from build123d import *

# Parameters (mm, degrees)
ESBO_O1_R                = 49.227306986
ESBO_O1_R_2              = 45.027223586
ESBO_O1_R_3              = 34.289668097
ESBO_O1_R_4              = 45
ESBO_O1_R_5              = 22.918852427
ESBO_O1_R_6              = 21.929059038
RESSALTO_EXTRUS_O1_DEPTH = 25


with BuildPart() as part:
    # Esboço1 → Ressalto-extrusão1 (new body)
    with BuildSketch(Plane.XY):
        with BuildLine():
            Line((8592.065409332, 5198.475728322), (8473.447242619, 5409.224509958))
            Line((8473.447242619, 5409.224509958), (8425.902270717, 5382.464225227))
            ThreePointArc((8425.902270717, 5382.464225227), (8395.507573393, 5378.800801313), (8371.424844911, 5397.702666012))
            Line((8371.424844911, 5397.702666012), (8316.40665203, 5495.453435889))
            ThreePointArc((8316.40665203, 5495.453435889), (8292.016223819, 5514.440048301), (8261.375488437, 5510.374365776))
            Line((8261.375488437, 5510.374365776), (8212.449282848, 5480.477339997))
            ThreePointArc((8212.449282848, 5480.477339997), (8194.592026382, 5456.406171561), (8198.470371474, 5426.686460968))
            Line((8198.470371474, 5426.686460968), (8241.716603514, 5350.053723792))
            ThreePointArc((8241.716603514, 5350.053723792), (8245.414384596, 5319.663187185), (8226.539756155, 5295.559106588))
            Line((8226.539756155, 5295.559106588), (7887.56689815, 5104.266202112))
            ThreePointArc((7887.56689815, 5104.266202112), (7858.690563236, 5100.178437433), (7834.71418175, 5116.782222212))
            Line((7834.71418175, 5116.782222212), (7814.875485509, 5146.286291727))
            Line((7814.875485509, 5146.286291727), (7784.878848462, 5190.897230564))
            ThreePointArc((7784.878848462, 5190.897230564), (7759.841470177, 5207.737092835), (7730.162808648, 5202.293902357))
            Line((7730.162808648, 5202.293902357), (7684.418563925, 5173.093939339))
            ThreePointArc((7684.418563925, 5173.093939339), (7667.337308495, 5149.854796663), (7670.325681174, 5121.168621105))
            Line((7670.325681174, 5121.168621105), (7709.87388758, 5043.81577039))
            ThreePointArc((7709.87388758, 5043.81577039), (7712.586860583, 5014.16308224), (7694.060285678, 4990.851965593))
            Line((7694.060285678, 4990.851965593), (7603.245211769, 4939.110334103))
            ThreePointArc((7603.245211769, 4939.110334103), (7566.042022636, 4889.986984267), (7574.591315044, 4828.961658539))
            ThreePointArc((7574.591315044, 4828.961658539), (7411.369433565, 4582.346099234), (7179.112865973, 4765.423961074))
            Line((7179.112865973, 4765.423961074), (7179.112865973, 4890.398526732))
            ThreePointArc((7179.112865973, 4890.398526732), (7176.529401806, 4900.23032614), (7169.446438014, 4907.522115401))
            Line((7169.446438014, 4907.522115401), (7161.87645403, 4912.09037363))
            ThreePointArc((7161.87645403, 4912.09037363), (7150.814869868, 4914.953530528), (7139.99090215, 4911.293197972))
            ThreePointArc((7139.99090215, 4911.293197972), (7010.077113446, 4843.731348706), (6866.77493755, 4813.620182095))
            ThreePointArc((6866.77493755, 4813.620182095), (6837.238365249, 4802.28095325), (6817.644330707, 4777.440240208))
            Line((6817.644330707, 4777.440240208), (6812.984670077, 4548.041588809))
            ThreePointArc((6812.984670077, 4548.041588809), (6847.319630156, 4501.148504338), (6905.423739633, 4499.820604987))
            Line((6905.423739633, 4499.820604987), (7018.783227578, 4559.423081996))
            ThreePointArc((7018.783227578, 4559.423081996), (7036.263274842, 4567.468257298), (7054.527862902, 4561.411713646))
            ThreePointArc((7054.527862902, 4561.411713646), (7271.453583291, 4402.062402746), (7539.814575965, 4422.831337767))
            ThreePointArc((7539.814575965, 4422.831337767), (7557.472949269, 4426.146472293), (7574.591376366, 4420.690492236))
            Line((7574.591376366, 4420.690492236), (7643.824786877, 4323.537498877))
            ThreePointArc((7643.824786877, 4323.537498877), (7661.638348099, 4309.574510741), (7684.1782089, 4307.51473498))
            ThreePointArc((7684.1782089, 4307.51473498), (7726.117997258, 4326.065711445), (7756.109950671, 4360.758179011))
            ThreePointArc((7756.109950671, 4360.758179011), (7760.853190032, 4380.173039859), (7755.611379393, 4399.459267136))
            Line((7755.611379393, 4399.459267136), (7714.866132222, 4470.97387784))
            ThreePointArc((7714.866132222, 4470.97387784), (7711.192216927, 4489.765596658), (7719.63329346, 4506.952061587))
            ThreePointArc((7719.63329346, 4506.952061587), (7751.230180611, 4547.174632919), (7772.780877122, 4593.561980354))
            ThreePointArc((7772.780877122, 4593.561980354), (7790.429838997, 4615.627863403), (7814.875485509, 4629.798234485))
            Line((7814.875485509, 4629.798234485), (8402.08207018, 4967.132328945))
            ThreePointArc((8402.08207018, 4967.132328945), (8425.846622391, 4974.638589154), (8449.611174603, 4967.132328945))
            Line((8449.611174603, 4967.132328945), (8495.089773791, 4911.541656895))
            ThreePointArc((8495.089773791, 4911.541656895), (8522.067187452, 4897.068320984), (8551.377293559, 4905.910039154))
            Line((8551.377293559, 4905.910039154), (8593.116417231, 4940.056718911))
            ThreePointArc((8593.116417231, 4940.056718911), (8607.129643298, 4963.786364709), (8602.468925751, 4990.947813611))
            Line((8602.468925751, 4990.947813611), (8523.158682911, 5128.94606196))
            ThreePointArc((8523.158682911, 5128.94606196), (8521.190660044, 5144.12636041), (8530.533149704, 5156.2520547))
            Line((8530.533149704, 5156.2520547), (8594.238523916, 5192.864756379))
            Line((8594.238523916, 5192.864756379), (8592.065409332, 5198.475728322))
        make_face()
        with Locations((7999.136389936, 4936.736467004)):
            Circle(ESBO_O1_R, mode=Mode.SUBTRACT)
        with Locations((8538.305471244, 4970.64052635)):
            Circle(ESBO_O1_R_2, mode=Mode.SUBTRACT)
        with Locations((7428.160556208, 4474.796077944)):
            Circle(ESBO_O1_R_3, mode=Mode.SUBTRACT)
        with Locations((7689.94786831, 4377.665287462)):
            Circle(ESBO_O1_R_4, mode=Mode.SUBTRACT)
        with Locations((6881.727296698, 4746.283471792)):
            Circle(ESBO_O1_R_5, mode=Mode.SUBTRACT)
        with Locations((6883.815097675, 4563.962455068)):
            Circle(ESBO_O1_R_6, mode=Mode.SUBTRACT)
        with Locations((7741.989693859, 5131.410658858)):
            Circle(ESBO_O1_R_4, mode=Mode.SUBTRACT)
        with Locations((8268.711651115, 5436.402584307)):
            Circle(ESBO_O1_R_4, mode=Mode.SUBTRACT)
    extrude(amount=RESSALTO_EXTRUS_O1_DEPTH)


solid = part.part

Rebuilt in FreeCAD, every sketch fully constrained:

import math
import FreeCAD as App
import Part
import Sketcher
from FreeCAD import Vector

doc = App.newDocument("Part")
body = doc.addObject("PartDesign::Body", "Body")

sketch1 = doc.addObject("Sketcher::SketchObject", "Sketch")
body.addObject(sketch1)
sketch1.AttachmentSupport = (doc.XY_Plane, [""])
sketch1.MapMode = "FlatFace"
sketch1.addGeometry([
    Part.LineSegment(Vector(8592.065409, 5198.475728, 0), Vector(8473.447243, 5409.22451, 0)),
    Part.LineSegment(Vector(8473.447243, 5409.22451, 0), Vector(8425.902271, 5382.464225, 0)),
    Part.ArcOfCircle(Part.Circle(Vector(8406.282778, 5417.322159, 0), Vector(0, 0, 1), 40), math.radians(-150.627384), math.radians(-60.627384)),
    Part.LineSegment(Vector(8371.424845, 5397.702666, 0), Vector(8316.406652, 5495.453436, 0)),
    Part.ArcOfCircle(Part.Circle(Vector(8281.548719, 5475.833943, 0), Vector(0, 0, 1), 40), math.radians(29.372616), math.radians(120.286937)),
    Part.LineSegment(Vector(8261.375488, 5510.374366, 0), Vector(8212.449283, 5480.47734, 0)),
    Part.ArcOfCircle(Part.Circle(Vector(8233.306104, 5446.345346, 0), Vector(0, 0, 1), 40), math.radians(121.427586), math.radians(209.437386)),
    Part.LineSegment(Vector(8198.470371, 5426.686461, 0), Vector(8241.716604, 5350.053724, 0)),
    Part.ArcOfCircle(Part.Circle(Vector(8206.880871, 5330.394839, 0), Vector(0, 0, 1), 40), math.radians(-60.562614), math.radians(29.437386)),
    Part.LineSegment(Vector(8226.539756, 5295.559107, 0), Vector(7887.566898, 5104.266202, 0)),
    Part.ArcOfCircle(Part.Circle(Vector(7867.908013, 5139.101934, 0), Vector(0, 0, 1), 40), math.radians(-146.0829), math.radians(-60.562614)),
    Part.LineSegment(Vector(7834.714182, 5116.782222, 0), Vector(7814.875486, 5146.286292, 0)),
    Part.LineSegment(Vector(7814.875486, 5146.286292, 0), Vector(7784.878848, 5190.897231, 0)),
    Part.ArcOfCircle(Part.Circle(Vector(7751.685017, 5168.577518, 0), Vector(0, 0, 1), 40), math.radians(33.9171), math.radians(122.551346)),
    Part.LineSegment(Vector(7730.162809, 5202.293902, 0), Vector(7684.418564, 5173.093939, 0)),
    Part.ArcOfCircle(Part.Circle(Vector(7705.940772, 5139.377555, 0), Vector(0, 0, 1), 40), math.radians(122.551346), math.radians(207.079306)),
    Part.LineSegment(Vector(7670.325681, 5121.168621, 0), Vector(7709.873888, 5043.81577, 0)),
    Part.ArcOfCircle(Part.Circle(Vector(7674.258796, 5025.606836, 0), Vector(0, 0, 1), 40), math.radians(-60.327795), math.radians(27.079306)),
    Part.LineSegment(Vector(7694.060286, 4990.851966, 0), Vector(7603.245212, 4939.110334, 0)),
    Part.ArcOfCircle(Part.Circle(Vector(7643.775622, 4869.765493, 0), Vector(0, 0, 1), 80.32074), math.radians(120.30527), math.radians(210.531446)),
    Part.ArcOfCircle(Part.Circle(Vector(7379.491158, 4780.766428, 0), Vector(0, 0, 1), 200.964801), math.radians(-175.621548), math.radians(13.875873)),
    Part.LineSegment(Vector(7179.112866, 4765.423961, 0), Vector(7179.112866, 4890.398527, 0)),
    Part.ArcOfCircle(Part.Circle(Vector(7159.112866, 4890.398527, 0), Vector(0, 0, 1), 20), math.radians(0), math.radians(58.890279)),
    Part.LineSegment(Vector(7169.446438, 4907.522115, 0), Vector(7161.876454, 4912.090374, 0)),
    Part.ArcOfCircle(Part.Circle(Vector(7151.542882, 4894.966785, 0), Vector(0, 0, 1), 20), math.radians(58.890279), math.radians(125.281845)),
    Part.ArcOfCircle(Part.Circle(Vector(6828.590225, 5351.395773, 0), Vector(0, 0, 1), 539.129537), math.radians(-85.938534), math.radians(-54.718155)),
    Part.ArcOfCircle(Part.Circle(Vector(6872.637835, 4754.21019, 0), Vector(0, 0, 1), 59.698582), math.radians(95.636007), math.radians(157.100102)),
    Part.LineSegment(Vector(6817.644331, 4777.44024, 0), Vector(6812.98467, 4548.041589, 0)),
    Part.ArcOfCircle(Part.Circle(Vector(6877.718654, 4559.423082, 0), Vector(0, 0, 1), 65.726913), math.radians(-170.028205), math.radians(-65.069529)),
    Part.LineSegment(Vector(6905.42374, 4499.820605, 0), Vector(7018.783228, 4559.423082, 0)),
    Part.ArcOfCircle(Part.Circle(Vector(7037.719592, 4541.291707, 0), Vector(0, 0, 1), 26.21703), math.radians(50.124589), math.radians(136.24408)),
    Part.ArcOfCircle(Part.Circle(Vector(7377.655548, 4773.965003, 0), Vector(0, 0, 1), 386.769184), math.radians(-146.663094), math.radians(-65.211767)),
    Part.ArcOfCircle(Part.Circle(Vector(7555.21589, 4389.481853, 0), Vector(0, 0, 1), 36.734025), math.radians(58.166449), math.radians(114.788233)),
    Part.LineSegment(Vector(7574.591376, 4420.690492, 0), Vector(7643.824787, 4323.537499, 0)),
    Part.ArcOfCircle(Part.Circle(Vector(7676.399731, 4346.751137, 0), Vector(0, 0, 1), 40), math.radians(-144.525472), math.radians(-78.786706)),
    Part.ArcOfCircle(Part.Circle(Vector(7663.813506, 4410.238902, 0), Vector(0, 0, 1), 104.723329), math.radians(-78.786706), math.radians(-28.196048)),
    Part.ArcOfCircle(Part.Circle(Vector(7720.856509, 4379.657778, 0), Vector(0, 0, 1), 40), math.radians(-28.196048), math.radians(29.672205)),
    Part.LineSegment(Vector(7755.611379, 4399.459267, 0), Vector(7714.866132, 4470.973878, 0)),
    Part.ArcOfCircle(Part.Circle(Vector(7740.932285, 4485.824995, 0), Vector(0, 0, 1), 30), math.radians(135.232181), math.radians(209.672205)),
    Part.ArcOfCircle(Part.Circle(Vector(7562.048922, 4663.264417, 0), Vector(0, 0, 1), 221.960327), math.radians(-44.767819), math.radians(-18.30233)),
    Part.ArcOfCircle(Part.Circle(Vector(7840.427047, 4557.547552, 0), Vector(0, 0, 1), 76.635784), math.radians(109.476217), math.radians(151.969422)),
    Part.LineSegment(Vector(7814.875486, 4629.798234, 0), Vector(8402.08207, 4967.132329, 0)),
    Part.ArcOfCircle(Part.Circle(Vector(8425.846622, 4933.266597, 0), Vector(0, 0, 1), 41.371993), math.radians(54.941564), math.radians(125.058436)),
    Part.LineSegment(Vector(8449.611175, 4967.132329, 0), Vector(8495.089774, 4911.541657, 0)),
    Part.ArcOfCircle(Part.Circle(Vector(8526.049343, 4936.869608, 0), Vector(0, 0, 1), 40), math.radians(-140.713481), math.radians(-50.713481)),
    Part.LineSegment(Vector(8551.377294, 4905.910039, 0), Vector(8593.116417, 4940.056719, 0)),
    Part.ArcOfCircle(Part.Circle(Vector(8567.788466, 4971.016288, 0), Vector(0, 0, 1), 40), math.radians(-50.713481), math.radians(29.886809)),
    Part.LineSegment(Vector(8602.468926, 4990.947814, 0), Vector(8523.158683, 5128.946062, 0)),
    Part.ArcOfCircle(Part.Circle(Vector(8540.498913, 5138.911825, 0), Vector(0, 0, 1), 20), math.radians(119.886809), math.radians(209.886809)),
    Part.LineSegment(Vector(8530.53315, 5156.252055, 0), Vector(8594.238524, 5192.864756, 0)),
    Part.LineSegment(Vector(8594.238524, 5192.864756, 0), Vector(8592.065409, 5198.475728, 0)),
    Part.Circle(Vector(6883.815098, 4563.962455, 0), Vector(0, 0, 1), 21.929059),
    Part.Circle(Vector(7428.160556, 4474.796078, 0), Vector(0, 0, 1), 34.289668),
    Part.Circle(Vector(7689.947868, 4377.665287, 0), Vector(0, 0, 1), 45),
    Part.Circle(Vector(6881.727297, 4746.283472, 0), Vector(0, 0, 1), 22.918852),
    Part.Circle(Vector(7999.13639, 4936.736467, 0), Vector(0, 0, 1), 49.227307),
    Part.Circle(Vector(7741.989694, 5131.410659, 0), Vector(0, 0, 1), 45),
    Part.Circle(Vector(8538.305471, 4970.640526, 0), Vector(0, 0, 1), 45.027224),
    Part.Circle(Vector(8268.711651, 5436.402584, 0), Vector(0, 0, 1), 45),
], False)
sketch1.addConstraint([
    Sketcher.Constraint("Coincident", 0, 2, 1, 1),
    Sketcher.Constraint("Coincident", 1, 2, 2, 2),
    Sketcher.Constraint("Coincident", 2, 1, 3, 1),
    Sketcher.Constraint("Coincident", 3, 2, 4, 1),
    Sketcher.Constraint("Coincident", 4, 2, 5, 1),
    Sketcher.Constraint("Coincident", 5, 2, 6, 1),
    Sketcher.Constraint("Coincident", 6, 2, 7, 1),
    Sketcher.Constraint("Coincident", 7, 2, 8, 2),
    Sketcher.Constraint("Coincident", 8, 1, 9, 1),
    Sketcher.Constraint("Coincident", 9, 2, 10, 2),
    Sketcher.Constraint("Coincident", 10, 1, 11, 1),
    Sketcher.Constraint("Coincident", 11, 2, 12, 1),
    Sketcher.Constraint("Coincident", 12, 2, 13, 1),
    Sketcher.Constraint("Coincident", 13, 2, 14, 1),
    Sketcher.Constraint("Coincident", 14, 2, 15, 1),
    Sketcher.Constraint("Coincident", 15, 2, 16, 1),
    Sketcher.Constraint("Coincident", 16, 2, 17, 2),
    Sketcher.Constraint("Coincident", 17, 1, 18, 1),
    Sketcher.Constraint("Coincident", 18, 2, 19, 1),
    Sketcher.Constraint("Coincident", 19, 2, 20, 2),
    Sketcher.Constraint("Coincident", 20, 1, 21, 1),
    Sketcher.Constraint("Coincident", 21, 2, 22, 1),
    Sketcher.Constraint("Coincident", 22, 2, 23, 1),
    Sketcher.Constraint("Coincident", 23, 2, 24, 1),
    Sketcher.Constraint("Coincident", 24, 2, 25, 2),
    Sketcher.Constraint("Coincident", 25, 1, 26, 1),
    Sketcher.Constraint("Coincident", 26, 2, 27, 1),
    Sketcher.Constraint("Coincident", 27, 2, 28, 1),
    Sketcher.Constraint("Coincident", 28, 2, 29, 1),
    Sketcher.Constraint("Coincident", 29, 2, 30, 2),
    Sketcher.Constraint("Coincident", 30, 1, 31, 1),
    Sketcher.Constraint("Coincident", 31, 2, 32, 2),
    Sketcher.Constraint("Coincident", 32, 1, 33, 1),
    Sketcher.Constraint("Coincident", 33, 2, 34, 1),
    Sketcher.Constraint("Coincident", 34, 2, 35, 1),
    Sketcher.Constraint("Coincident", 35, 2, 36, 1),
    Sketcher.Constraint("Coincident", 36, 2, 37, 1),
    Sketcher.Constraint("Coincident", 37, 2, 38, 2),
    Sketcher.Constraint("Coincident", 38, 1, 39, 1),
    Sketcher.Constraint("Coincident", 39, 2, 40, 2),
    Sketcher.Constraint("Coincident", 40, 1, 41, 1),
    Sketcher.Constraint("Coincident", 41, 2, 42, 2),
    Sketcher.Constraint("Coincident", 42, 1, 43, 1),
    Sketcher.Constraint("Coincident", 43, 2, 44, 1),
    Sketcher.Constraint("Coincident", 44, 2, 45, 1),
    Sketcher.Constraint("Coincident", 45, 2, 46, 1),
    Sketcher.Constraint("Coincident", 46, 2, 47, 1),
    Sketcher.Constraint("Coincident", 47, 2, 48, 2),
    Sketcher.Constraint("Coincident", 48, 1, 49, 1),
    Sketcher.Constraint("Coincident", 49, 2, 50, 1),
    Sketcher.Constraint("Coincident", 50, 2, 0, 1),
    Sketcher.Constraint("Vertical", 21),
    Sketcher.Constraint("Diameter", 53, 90.0),
    Sketcher.Constraint("Diameter", 56, 90.0),
    Sketcher.Constraint("Diameter", 58, 90.0),
    Sketcher.Constraint("Radius", 2, 40.0),
    Sketcher.Constraint("Radius", 4, 40.0),
    Sketcher.Constraint("Radius", 6, 40.0),
    Sketcher.Constraint("Radius", 8, 40.0),
    Sketcher.Constraint("Radius", 10, 40.0),
    Sketcher.Constraint("Radius", 13, 40.0),
    Sketcher.Constraint("Radius", 15, 40.0),
    Sketcher.Constraint("Radius", 17, 40.0),
    Sketcher.Constraint("Radius", 22, 20.0),
    Sketcher.Constraint("Radius", 24, 20.0),
    Sketcher.Constraint("Radius", 34, 40.0),
    Sketcher.Constraint("Radius", 36, 40.0),
    Sketcher.Constraint("Radius", 38, 30.0),
    Sketcher.Constraint("Radius", 44, 40.0),
    Sketcher.Constraint("Radius", 46, 40.0),
    Sketcher.Constraint("Radius", 48, 20.0),
    Sketcher.Constraint("Radius", 20, 200.964801),
    Sketcher.Constraint("Diameter", 51, 43.858118),
    Sketcher.Constraint("Radius", 19, 80.32074),
    Sketcher.Constraint("Radius", 30, 26.21703),
    Sketcher.Constraint("Radius", 35, 104.723329),
    Sketcher.Constraint("Diameter", 52, 68.579336),
    Sketcher.Constraint("Diameter", 54, 45.837705),
    Sketcher.Constraint("Diameter", 55, 98.454614),
    Sketcher.Constraint("Diameter", 57, 90.054447),
    Sketcher.Constraint("Radius", 25, 539.129537),
    Sketcher.Constraint("Radius", 26, 59.698582),
    Sketcher.Constraint("Radius", 28, 65.726913),
    Sketcher.Constraint("Radius", 31, 386.769184),
    Sketcher.Constraint("Radius", 32, 36.734025),
    Sketcher.Constraint("Radius", 39, 221.960327),
    Sketcher.Constraint("Radius", 40, 76.635784),
    Sketcher.Constraint("Radius", 42, 41.371993),
    Sketcher.Constraint("DistanceY", -1, 1, 35, 3, 4410.238902),
    Sketcher.Constraint("DistanceX", -1, 1, 9, 2, 7887.566898),
    Sketcher.Constraint("DistanceY", -1, 1, 33, 2, 4323.537499),
    Sketcher.Constraint("Distance", 0, 241.83738),
    Sketcher.Constraint("Distance", 3, 112.170471),
    Sketcher.Constraint("Distance", 27, 229.445971),
    Sketcher.Constraint("Distance", 29, 128.073529),
    Sketcher.Constraint("Distance", 37, 82.30744),
    Sketcher.Constraint("Distance", 47, 159.165421),
    Sketcher.Constraint("DistanceY", 21, 1, 21, 2, 124.974566),
    Sketcher.Constraint("DistanceX", -1, 1, 2, 3, 8406.282778),
    Sketcher.Constraint("DistanceY", -1, 1, 2, 3, 5417.322159),
    Sketcher.Constraint("DistanceX", -1, 1, 4, 3, 8281.548719),
    Sketcher.Constraint("DistanceX", -1, 1, 8, 3, 8206.880871),
    Sketcher.Constraint("DistanceY", -1, 1, 8, 3, 5330.394839),
    Sketcher.Constraint("DistanceY", -1, 1, 13, 3, 5168.577518),
    Sketcher.Constraint("DistanceX", -1, 1, 20, 3, 7379.491158),
    Sketcher.Constraint("DistanceY", -1, 1, 20, 3, 4780.766428),
    Sketcher.Constraint("DistanceX", -1, 1, 24, 3, 7151.542882),
    Sketcher.Constraint("DistanceY", -1, 1, 26, 3, 4754.21019),
    Sketcher.Constraint("DistanceY", -1, 1, 28, 3, 4559.423082),
    Sketcher.Constraint("DistanceX", -1, 1, 30, 3, 7037.719592),
    Sketcher.Constraint("DistanceX", -1, 1, 32, 3, 7555.21589),
    Sketcher.Constraint("DistanceX", -1, 1, 34, 3, 7676.399731),
    Sketcher.Constraint("DistanceX", -1, 1, 36, 3, 7720.856509),
    Sketcher.Constraint("DistanceX", -1, 1, 39, 3, 7562.048922),
    Sketcher.Constraint("DistanceX", -1, 1, 53, 3, 7689.947868),
    Sketcher.Constraint("DistanceY", -1, 1, 54, 3, 4746.283472),
    Sketcher.Constraint("DistanceX", -1, 1, 55, 3, 7999.13639),
    Sketcher.Constraint("DistanceY", -1, 1, 56, 3, 5131.410659),
    Sketcher.Constraint("DistanceX", -1, 1, 57, 3, 8538.305471),
    Sketcher.Constraint("DistanceX", -1, 1, 58, 3, 8268.711651),
    Sketcher.Constraint("DistanceY", -1, 1, 0, 2, 5409.22451),
    Sketcher.Constraint("DistanceX", -1, 1, 1, 2, 8425.902271),
    Sketcher.Constraint("DistanceX", -1, 1, 4, 2, 8261.375488),
    Sketcher.Constraint("DistanceY", -1, 1, 5, 2, 5480.47734),
    Sketcher.Constraint("DistanceX", -1, 1, 6, 2, 8198.470371),
    Sketcher.Constraint("DistanceY", -1, 1, 6, 2, 5426.686461),
    Sketcher.Constraint("DistanceX", -1, 1, 10, 1, 7834.714182),
    Sketcher.Constraint("DistanceY", -1, 1, 11, 2, 5146.286292),
    Sketcher.Constraint("DistanceX", -1, 1, 12, 2, 7784.878848),
    Sketcher.Constraint("DistanceY", -1, 1, 12, 2, 5190.897231),
    Sketcher.Constraint("DistanceX", -1, 1, 13, 2, 7730.162809),
    Sketcher.Constraint("DistanceY", -1, 1, 14, 2, 5173.093939),
    Sketcher.Constraint("DistanceX", -1, 1, 15, 2, 7670.325681),
    Sketcher.Constraint("DistanceY", -1, 1, 15, 2, 5121.168621),
    Sketcher.Constraint("DistanceY", -1, 1, 16, 2, 5043.81577),
    Sketcher.Constraint("DistanceX", -1, 1, 18, 2, 7603.245212),
    Sketcher.Constraint("DistanceY", -1, 1, 19, 2, 4828.961659),
    Sketcher.Constraint("DistanceY", -1, 1, 20, 1, 4765.423961),
    Sketcher.Constraint("DistanceX", -1, 1, 22, 2, 7169.446438),
    Sketcher.Constraint("DistanceX", -1, 1, 26, 2, 6817.644331),
    Sketcher.Constraint("DistanceY", -1, 1, 26, 2, 4777.44024),
    Sketcher.Constraint("DistanceX", -1, 1, 27, 2, 6812.98467),
    Sketcher.Constraint("DistanceX", -1, 1, 28, 2, 6905.42374),
    Sketcher.Constraint("DistanceY", -1, 1, 29, 2, 4559.423082),
    Sketcher.Constraint("DistanceX", -1, 1, 34, 2, 7684.178209),
    Sketcher.Constraint("DistanceX", -1, 1, 35, 2, 7756.109951),
    Sketcher.Constraint("DistanceY", -1, 1, 35, 2, 4360.758179),
    Sketcher.Constraint("DistanceX", -1, 1, 36, 2, 7755.611379),
    Sketcher.Constraint("DistanceY", -1, 1, 38, 1, 4506.952062),
    Sketcher.Constraint("DistanceY", -1, 1, 39, 2, 4593.56198),
    Sketcher.Constraint("DistanceX", -1, 1, 41, 2, 8402.08207),
    Sketcher.Constraint("DistanceY", -1, 1, 41, 2, 4967.132329),
    Sketcher.Constraint("DistanceY", -1, 1, 42, 1, 4967.132329),
    Sketcher.Constraint("DistanceY", -1, 1, 44, 2, 4905.910039),
    Sketcher.Constraint("DistanceY", -1, 1, 45, 2, 4940.056719),
    Sketcher.Constraint("DistanceY", -1, 1, 47, 2, 5128.946062),
    Sketcher.Constraint("DistanceX", -1, 1, 48, 1, 8530.53315),
    Sketcher.Constraint("DistanceX", -1, 1, 50, 2, 8592.065409),
    Sketcher.Constraint("DistanceY", -1, 1, 50, 2, 5198.475728),
    Sketcher.Constraint("Distance", 5, 57.337647),
    Sketcher.Constraint("Distance", 7, 87.993255),
    Sketcher.Constraint("Distance", 9, 389.224323),
    Sketcher.Constraint("Distance", 11, 35.553678),
    Sketcher.Constraint("Distance", 12, 53.758107),
    Sketcher.Constraint("Distance", 14, 54.269455),
    Sketcher.Constraint("Distance", 16, 86.876488),
    Sketcher.Constraint("Distance", 18, 104.520687),
    Sketcher.Constraint("Distance", 23, 8.841586),
    Sketcher.Constraint("Distance", 33, 119.297817),
    Sketcher.Constraint("Distance", 41, 677.204448),
    Sketcher.Constraint("Distance", 43, 71.823574),
    Sketcher.Constraint("Distance", 45, 53.927268),
    Sketcher.Constraint("Distance", 49, 73.476967),
    Sketcher.Constraint("Distance", 50, 6.017095),
    Sketcher.Constraint("DistanceY", -1, 1, 4, 3, 5475.833943),
    Sketcher.Constraint("DistanceX", -1, 1, 10, 3, 7867.908013),
    Sketcher.Constraint("DistanceX", -1, 1, 17, 3, 7674.258796),
    Sketcher.Constraint("DistanceX", -1, 1, 19, 3, 7643.775622),
    Sketcher.Constraint("DistanceY", -1, 1, 22, 3, 4890.398527),
    Sketcher.Constraint("DistanceY", -1, 1, 24, 3, 4894.966785),
    Sketcher.Constraint("DistanceX", -1, 1, 25, 3, 6828.590225),
    Sketcher.Constraint("DistanceX", -1, 1, 31, 3, 7377.655548),
    Sketcher.Constraint("DistanceY", -1, 1, 31, 3, 4773.965003),
    Sketcher.Constraint("DistanceX", -1, 1, 38, 3, 7740.932285),
    Sketcher.Constraint("DistanceY", -1, 1, 38, 3, 4485.824995),
    Sketcher.Constraint("DistanceX", -1, 1, 40, 3, 7840.427047),
    Sketcher.Constraint("DistanceX", -1, 1, 42, 3, 8425.846622),
    Sketcher.Constraint("DistanceX", -1, 1, 44, 3, 8526.049343),
    Sketcher.Constraint("DistanceY", -1, 1, 44, 3, 4936.869608),
    Sketcher.Constraint("DistanceX", -1, 1, 46, 3, 8567.788466),
    Sketcher.Constraint("DistanceX", -1, 1, 48, 3, 8540.498913),
    Sketcher.Constraint("DistanceY", -1, 1, 48, 3, 5138.911825),
    Sketcher.Constraint("DistanceX", -1, 1, 51, 3, 6883.815098),
    Sketcher.Constraint("DistanceY", -1, 1, 51, 3, 4563.962455),
    Sketcher.Constraint("DistanceX", -1, 1, 52, 3, 7428.160556),
    Sketcher.Constraint("DistanceY", -1, 1, 52, 3, 4474.796078),
    Sketcher.Constraint("DistanceY", -1, 1, 53, 3, 4377.665287),
    Sketcher.Constraint("DistanceX", -1, 1, 54, 3, 6881.727297),
    Sketcher.Constraint("DistanceY", -1, 1, 55, 3, 4936.736467),
    Sketcher.Constraint("DistanceX", -1, 1, 56, 3, 7741.989694),
    Sketcher.Constraint("DistanceY", -1, 1, 57, 3, 4970.640526),
    Sketcher.Constraint("DistanceY", -1, 1, 58, 3, 5436.402584),
    Sketcher.Constraint("DistanceX", -1, 1, 2, 1, 8371.424845),
    Sketcher.Constraint("DistanceX", -1, 1, 24, 2, 7139.990902),
    Sketcher.Constraint("DistanceX", -1, 1, 31, 2, 7539.814576),
])
pad1 = doc.addObject("PartDesign::Pad", "Pad")
body.addObject(pad1)
pad1.Profile = sketch1
pad1.Length = 25

doc.recompute()
